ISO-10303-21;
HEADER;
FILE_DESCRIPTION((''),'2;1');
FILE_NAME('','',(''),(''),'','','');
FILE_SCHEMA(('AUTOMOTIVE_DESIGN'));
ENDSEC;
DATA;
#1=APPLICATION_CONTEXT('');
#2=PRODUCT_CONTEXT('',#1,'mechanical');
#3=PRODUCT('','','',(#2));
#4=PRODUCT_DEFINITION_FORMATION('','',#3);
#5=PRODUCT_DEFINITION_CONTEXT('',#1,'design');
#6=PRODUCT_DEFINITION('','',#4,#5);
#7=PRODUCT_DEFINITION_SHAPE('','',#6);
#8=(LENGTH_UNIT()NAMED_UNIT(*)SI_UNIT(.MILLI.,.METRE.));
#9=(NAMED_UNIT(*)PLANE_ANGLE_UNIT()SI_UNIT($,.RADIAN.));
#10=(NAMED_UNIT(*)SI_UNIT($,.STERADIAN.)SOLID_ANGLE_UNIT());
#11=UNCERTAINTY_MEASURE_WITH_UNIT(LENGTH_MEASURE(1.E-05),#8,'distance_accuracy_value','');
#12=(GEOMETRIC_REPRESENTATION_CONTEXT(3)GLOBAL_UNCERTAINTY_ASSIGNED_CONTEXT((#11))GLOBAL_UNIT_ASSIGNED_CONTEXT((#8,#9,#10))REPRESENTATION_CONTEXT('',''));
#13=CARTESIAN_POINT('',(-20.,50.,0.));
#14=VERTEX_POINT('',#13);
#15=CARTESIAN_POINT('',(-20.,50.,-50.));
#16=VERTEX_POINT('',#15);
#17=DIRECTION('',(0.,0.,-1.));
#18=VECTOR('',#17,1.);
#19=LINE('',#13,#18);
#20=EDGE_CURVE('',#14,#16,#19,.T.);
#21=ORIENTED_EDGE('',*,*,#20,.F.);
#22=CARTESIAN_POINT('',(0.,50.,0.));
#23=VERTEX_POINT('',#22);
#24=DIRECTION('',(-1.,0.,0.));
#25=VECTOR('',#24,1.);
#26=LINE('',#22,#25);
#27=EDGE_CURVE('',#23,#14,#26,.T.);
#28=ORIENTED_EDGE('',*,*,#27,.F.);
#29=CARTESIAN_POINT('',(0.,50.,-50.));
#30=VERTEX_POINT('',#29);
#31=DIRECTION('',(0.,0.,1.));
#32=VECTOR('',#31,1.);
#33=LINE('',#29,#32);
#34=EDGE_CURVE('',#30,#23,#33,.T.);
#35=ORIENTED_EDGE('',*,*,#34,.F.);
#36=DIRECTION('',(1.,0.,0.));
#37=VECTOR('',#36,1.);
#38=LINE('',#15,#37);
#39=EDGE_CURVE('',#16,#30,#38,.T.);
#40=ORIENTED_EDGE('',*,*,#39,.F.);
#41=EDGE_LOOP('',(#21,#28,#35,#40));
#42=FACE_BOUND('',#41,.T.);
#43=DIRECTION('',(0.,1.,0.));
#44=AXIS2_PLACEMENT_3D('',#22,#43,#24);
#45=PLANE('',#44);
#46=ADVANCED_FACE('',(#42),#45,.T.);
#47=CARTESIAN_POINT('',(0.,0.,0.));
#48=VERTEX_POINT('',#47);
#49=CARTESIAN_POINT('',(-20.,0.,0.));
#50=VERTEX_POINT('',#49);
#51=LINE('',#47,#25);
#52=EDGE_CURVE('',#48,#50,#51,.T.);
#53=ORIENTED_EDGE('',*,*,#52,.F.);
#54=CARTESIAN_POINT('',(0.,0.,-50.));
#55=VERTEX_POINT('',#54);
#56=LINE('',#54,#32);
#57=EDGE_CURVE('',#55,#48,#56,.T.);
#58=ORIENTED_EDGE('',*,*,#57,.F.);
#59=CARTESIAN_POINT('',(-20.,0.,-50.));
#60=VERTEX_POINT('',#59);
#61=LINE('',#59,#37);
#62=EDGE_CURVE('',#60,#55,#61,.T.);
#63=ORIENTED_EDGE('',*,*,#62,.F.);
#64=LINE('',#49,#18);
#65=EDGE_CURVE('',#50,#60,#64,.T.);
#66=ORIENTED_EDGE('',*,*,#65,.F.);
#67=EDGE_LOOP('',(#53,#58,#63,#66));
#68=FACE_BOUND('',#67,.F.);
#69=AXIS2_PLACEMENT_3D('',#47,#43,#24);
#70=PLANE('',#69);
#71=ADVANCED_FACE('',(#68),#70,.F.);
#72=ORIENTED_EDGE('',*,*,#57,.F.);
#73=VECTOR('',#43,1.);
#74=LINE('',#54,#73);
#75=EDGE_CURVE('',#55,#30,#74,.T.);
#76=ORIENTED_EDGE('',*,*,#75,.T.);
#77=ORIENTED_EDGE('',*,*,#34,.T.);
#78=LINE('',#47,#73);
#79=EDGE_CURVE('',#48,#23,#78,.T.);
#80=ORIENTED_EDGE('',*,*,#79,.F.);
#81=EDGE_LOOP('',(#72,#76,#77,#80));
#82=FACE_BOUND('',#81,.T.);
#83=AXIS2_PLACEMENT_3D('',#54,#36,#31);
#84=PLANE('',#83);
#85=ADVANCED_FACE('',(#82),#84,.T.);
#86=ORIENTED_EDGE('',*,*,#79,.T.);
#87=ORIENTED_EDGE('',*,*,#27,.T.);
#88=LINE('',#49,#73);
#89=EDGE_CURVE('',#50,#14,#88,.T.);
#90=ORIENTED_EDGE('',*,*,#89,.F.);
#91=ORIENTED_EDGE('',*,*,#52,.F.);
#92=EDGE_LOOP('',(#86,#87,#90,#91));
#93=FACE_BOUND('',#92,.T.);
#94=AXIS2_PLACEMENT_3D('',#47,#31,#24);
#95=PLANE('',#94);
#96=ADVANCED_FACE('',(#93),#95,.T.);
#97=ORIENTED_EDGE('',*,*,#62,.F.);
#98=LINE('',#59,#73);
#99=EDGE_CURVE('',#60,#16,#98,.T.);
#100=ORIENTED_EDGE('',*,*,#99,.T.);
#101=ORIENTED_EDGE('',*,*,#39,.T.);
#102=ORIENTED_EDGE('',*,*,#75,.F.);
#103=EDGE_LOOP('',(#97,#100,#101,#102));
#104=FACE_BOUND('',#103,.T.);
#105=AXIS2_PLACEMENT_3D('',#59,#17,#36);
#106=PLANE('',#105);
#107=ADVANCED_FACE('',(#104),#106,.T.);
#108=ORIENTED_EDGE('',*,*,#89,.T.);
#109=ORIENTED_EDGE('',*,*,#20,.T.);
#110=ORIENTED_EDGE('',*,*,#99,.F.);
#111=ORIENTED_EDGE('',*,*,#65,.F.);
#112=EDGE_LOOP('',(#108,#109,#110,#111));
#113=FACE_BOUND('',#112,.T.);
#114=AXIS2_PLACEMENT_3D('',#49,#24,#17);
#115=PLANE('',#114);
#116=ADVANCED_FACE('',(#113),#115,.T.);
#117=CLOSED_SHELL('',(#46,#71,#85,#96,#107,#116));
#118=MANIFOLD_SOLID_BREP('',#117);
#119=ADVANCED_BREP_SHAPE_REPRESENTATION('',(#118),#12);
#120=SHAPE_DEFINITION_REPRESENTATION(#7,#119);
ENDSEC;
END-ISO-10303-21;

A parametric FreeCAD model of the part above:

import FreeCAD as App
import Part
import Sketcher
from FreeCAD import Vector

doc = App.newDocument("Part")
body = doc.addObject("PartDesign::Body", "Body")

sketch1 = body.newObject("Sketcher::SketchObject", "Sketch")
sketch1.AttachmentSupport = (doc.getObject("XZ_Plane"), [""])
sketch1.MapMode = "FlatFace"
sketch1.addGeometry(Part.LineSegment(Vector(-20, 0, 0), Vector(0, 0, 0)), False)
sketch1.addGeometry(Part.LineSegment(Vector(0, 0, 0), Vector(0, -50, 0)), False)
sketch1.addGeometry(Part.LineSegment(Vector(0, -50, 0), Vector(-20, -50, 0)), False)
sketch1.addGeometry(Part.LineSegment(Vector(-20, -50, 0), Vector(-20, 0, 0)), False)
sketch1.addConstraint(Sketcher.Constraint("Coincident", 0, 2, 1, 1))
sketch1.addConstraint(Sketcher.Constraint("Coincident", 1, 2, 2, 1))
sketch1.addConstraint(Sketcher.Constraint("Coincident", 2, 2, 3, 1))
sketch1.addConstraint(Sketcher.Constraint("Coincident", 3, 2, 0, 1))
sketch1.addConstraint(Sketcher.Constraint("Horizontal", 0))
sketch1.addConstraint(Sketcher.Constraint("Vertical", 1))
sketch1.addConstraint(Sketcher.Constraint("Horizontal", 2))
sketch1.addConstraint(Sketcher.Constraint("Vertical", 3))
sketch1.addConstraint(Sketcher.Constraint("Coincident", 0, 2, -1, 1))
sketch1.addConstraint(Sketcher.Constraint("DistanceX", 0, 1, 0, 2, 20.0))
sketch1.addConstraint(Sketcher.Constraint("DistanceY", 1, 2, 1, 1, 50.0))
pad1 = body.newObject("PartDesign::Pad", "Pad")
pad1.Profile = sketch1
pad1.Length = 50
pad1.Reversed = True

doc.recompute()
